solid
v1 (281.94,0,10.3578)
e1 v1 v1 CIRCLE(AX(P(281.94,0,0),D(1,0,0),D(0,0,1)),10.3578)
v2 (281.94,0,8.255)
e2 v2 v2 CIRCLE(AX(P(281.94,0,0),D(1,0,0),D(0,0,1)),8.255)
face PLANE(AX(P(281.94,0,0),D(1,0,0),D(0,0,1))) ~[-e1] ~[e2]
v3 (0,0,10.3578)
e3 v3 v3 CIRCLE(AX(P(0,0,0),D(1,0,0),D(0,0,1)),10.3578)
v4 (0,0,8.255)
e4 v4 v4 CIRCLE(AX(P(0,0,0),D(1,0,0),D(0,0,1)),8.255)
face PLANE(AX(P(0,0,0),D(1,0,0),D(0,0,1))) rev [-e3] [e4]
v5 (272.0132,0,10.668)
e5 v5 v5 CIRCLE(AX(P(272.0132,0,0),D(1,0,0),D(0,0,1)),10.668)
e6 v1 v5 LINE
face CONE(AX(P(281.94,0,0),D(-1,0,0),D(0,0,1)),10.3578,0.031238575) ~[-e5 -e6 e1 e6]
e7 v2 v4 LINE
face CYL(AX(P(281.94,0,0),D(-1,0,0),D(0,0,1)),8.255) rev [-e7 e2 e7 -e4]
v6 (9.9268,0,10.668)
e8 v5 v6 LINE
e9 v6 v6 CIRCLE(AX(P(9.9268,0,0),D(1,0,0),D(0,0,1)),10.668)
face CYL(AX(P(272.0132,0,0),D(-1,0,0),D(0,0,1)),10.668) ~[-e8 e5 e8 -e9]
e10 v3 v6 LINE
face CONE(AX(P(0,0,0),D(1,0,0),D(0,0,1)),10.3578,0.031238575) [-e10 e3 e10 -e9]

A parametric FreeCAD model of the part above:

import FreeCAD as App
import Part
import Sketcher
Q = App.Units.Quantity

doc = App.newDocument("Part")
params = doc.addObject("Spreadsheet::Sheet", "Params")
for row, (alias, value) in enumerate([
    ("sketch1_width", "11.1 in"),
    ("sketch1_length", "0.391 in"),
    ("revolution_angle", "360 deg"),
], start=1):
    params.set(f"A{row}", alias)
    params.set(f"B{row}", "=" + value)
    params.setAlias(f"B{row}", alias)

body = doc.addObject("PartDesign::Body", "Body")

# Sketch on XZ plane
sketch1 = body.newObject("Sketcher::SketchObject", "Sketch")
sketch1.AttachmentSupport = (doc.getObject("XZ_Plane"), [""])
sketch1.MapMode = "FlatFace"
sketch1.addGeometry([
    Part.LineSegment(App.Vector(281.9, 10.4, 0), App.Vector(281.9, 8.3, 0)),  # 0
    Part.LineSegment(App.Vector(281.9, 8.3, 0), App.Vector(0, 8.3, 0)),  # 1
    Part.LineSegment(App.Vector(0, 8.3, 0), App.Vector(0, 10.4, 0)),  # 2
    Part.LineSegment(App.Vector(0, 10.4, 0), App.Vector(9.9, 10.7, 0)),  # 3
    Part.LineSegment(App.Vector(9.9, 10.7, 0), App.Vector(272, 10.7, 0)),  # 4
    Part.LineSegment(App.Vector(272, 10.7, 0), App.Vector(281.9, 10.4, 0)),  # 5
], False)
sketch1.addConstraint([
    Sketcher.Constraint("Coincident", 0, 2, 1, 1),
    Sketcher.Constraint("Coincident", 1, 2, 2, 1),
    Sketcher.Constraint("Coincident", 2, 2, 3, 1),
    Sketcher.Constraint("Coincident", 3, 2, 4, 1),
    Sketcher.Constraint("Coincident", 4, 2, 5, 1),
    Sketcher.Constraint("Coincident", 5, 2, 0, 1),
    Sketcher.Constraint("Vertical", 0),
    Sketcher.Constraint("Horizontal", 1),
    Sketcher.Constraint("Vertical", 2),
    Sketcher.Constraint("Horizontal", 4),
    Sketcher.Constraint("PointOnObject", 1, 2, -2),
    Sketcher.Constraint("Horizontal", 2, 2, 5, 2),
    Sketcher.Constraint("Equal", 3, 5),
    Sketcher.Constraint("DistanceX", 1, 2, 1, 1, Q("11.1 in")),
    Sketcher.Constraint("Angle", 3, Q("1.7898 deg")),
    Sketcher.Constraint("DistanceY", -1, 1, 3, 2, Q("0.42 in")),
    Sketcher.Constraint("Distance", 3, Q("0.391 in")),
    Sketcher.Constraint("DistanceY", -1, 1, 0, 2, Q("0.325 in")),
])
sketch1.setExpression("Constraints[13]", "Params.sketch1_width")
sketch1.setExpression("Constraints[16]", "Params.sketch1_length")
revolution = body.newObject("PartDesign::Revolution", "Revolution")
revolution.Profile = sketch1
revolution.ReferenceAxis = (sketch1, ["H_Axis"])
revolution.setExpression("Angle", "Params.revolution_angle")

doc.recompute()
